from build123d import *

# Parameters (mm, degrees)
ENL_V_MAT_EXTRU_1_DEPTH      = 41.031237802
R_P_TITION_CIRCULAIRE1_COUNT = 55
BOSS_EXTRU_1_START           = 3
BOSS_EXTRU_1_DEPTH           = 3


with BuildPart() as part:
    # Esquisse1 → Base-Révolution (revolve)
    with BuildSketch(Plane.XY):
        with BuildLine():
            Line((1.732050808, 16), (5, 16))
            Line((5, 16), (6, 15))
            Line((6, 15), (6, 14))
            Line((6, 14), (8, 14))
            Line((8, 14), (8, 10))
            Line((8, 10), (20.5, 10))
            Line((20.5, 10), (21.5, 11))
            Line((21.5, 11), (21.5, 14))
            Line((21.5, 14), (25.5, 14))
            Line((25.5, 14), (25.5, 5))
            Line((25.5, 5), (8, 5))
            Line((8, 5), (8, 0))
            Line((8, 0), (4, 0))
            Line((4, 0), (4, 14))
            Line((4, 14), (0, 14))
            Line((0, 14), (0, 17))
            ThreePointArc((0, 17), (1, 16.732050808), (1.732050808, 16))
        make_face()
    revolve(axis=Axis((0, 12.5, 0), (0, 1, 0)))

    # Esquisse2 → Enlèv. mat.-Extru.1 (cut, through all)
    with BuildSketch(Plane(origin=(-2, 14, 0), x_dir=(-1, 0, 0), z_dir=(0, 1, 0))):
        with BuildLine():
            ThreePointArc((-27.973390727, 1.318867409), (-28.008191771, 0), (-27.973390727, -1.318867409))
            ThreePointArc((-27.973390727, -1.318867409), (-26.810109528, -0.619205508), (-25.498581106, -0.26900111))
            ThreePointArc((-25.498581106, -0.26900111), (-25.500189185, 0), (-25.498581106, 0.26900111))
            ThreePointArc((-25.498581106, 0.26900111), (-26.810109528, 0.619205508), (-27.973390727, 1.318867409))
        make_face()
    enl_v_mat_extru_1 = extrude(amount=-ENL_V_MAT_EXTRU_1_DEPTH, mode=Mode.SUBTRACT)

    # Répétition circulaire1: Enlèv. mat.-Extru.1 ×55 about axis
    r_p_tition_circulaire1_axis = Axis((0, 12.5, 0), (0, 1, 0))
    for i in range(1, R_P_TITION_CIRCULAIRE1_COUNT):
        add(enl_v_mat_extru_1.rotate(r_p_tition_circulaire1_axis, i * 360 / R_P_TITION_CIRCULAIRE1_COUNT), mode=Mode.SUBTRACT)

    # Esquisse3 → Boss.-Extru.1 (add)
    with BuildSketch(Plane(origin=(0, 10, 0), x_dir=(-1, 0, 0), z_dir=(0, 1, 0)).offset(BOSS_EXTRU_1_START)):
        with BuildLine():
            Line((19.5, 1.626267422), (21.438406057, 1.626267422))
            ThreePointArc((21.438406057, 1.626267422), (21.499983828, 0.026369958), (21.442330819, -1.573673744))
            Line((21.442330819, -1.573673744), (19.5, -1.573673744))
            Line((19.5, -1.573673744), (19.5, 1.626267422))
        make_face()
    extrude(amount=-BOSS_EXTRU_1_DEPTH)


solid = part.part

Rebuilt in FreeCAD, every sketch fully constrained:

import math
import FreeCAD as App
import Part
import Sketcher

V = App.Vector
Q = App.Units.Quantity

doc = App.newDocument("Part")
body = doc.addObject("PartDesign::Body", "Body")

sketch1 = body.newObject("Sketcher::SketchObject", "Sketch")
sketch1.AttachmentSupport = (doc.getObject("XY_Plane"), [""])
sketch1.MapMode = "FlatFace"
sketch1.addGeometry(Part.LineSegment(V(5, 16, 0), V(1.732051, 16, 0)), False)
sketch1.addGeometry(Part.ArcOfCircle(Part.Circle(V(0, 15, 0), V(0, 0, 1), 2), math.radians(30), math.radians(90)), False)
sketch1.addGeometry(Part.LineSegment(V(0, 17, 0), V(0, 14, 0)), False)
sketch1.addGeometry(Part.LineSegment(V(0, 14, 0), V(4, 14, 0)), False)
sketch1.addGeometry(Part.LineSegment(V(4, 14, 0), V(4, 0, 0)), False)
sketch1.addGeometry(Part.LineSegment(V(4, 0, 0), V(8, 0, 0)), False)
sketch1.addGeometry(Part.LineSegment(V(8, 0, 0), V(8, 5, 0)), False)
sketch1.addGeometry(Part.LineSegment(V(8, 5, 0), V(25.5, 5, 0)), False)
sketch1.addGeometry(Part.LineSegment(V(25.5, 5, 0), V(25.5, 14, 0)), False)
sketch1.addGeometry(Part.LineSegment(V(25.5, 14, 0), V(21.5, 14, 0)), False)
sketch1.addGeometry(Part.LineSegment(V(21.5, 14, 0), V(21.5, 11, 0)), False)
sketch1.addGeometry(Part.LineSegment(V(21.5, 11, 0), V(20.5, 10, 0)), False)
sketch1.addGeometry(Part.LineSegment(V(20.5, 10, 0), V(8, 10, 0)), False)
sketch1.addGeometry(Part.LineSegment(V(8, 10, 0), V(8, 14, 0)), False)
sketch1.addGeometry(Part.LineSegment(V(8, 14, 0), V(6, 14, 0)), False)
sketch1.addGeometry(Part.LineSegment(V(6, 14, 0), V(6, 15, 0)), False)
sketch1.addGeometry(Part.LineSegment(V(6, 15, 0), V(5, 16, 0)), False)
sketch1.addConstraint(Sketcher.Constraint("Coincident", 0, 2, 1, 1))
sketch1.addConstraint(Sketcher.Constraint("Coincident", 1, 2, 2, 1))
sketch1.addConstraint(Sketcher.Constraint("Coincident", 2, 2, 3, 1))
sketch1.addConstraint(Sketcher.Constraint("Coincident", 3, 2, 4, 1))
sketch1.addConstraint(Sketcher.Constraint("Coincident", 4, 2, 5, 1))
sketch1.addConstraint(Sketcher.Constraint("Coincident", 5, 2, 6, 1))
sketch1.addConstraint(Sketcher.Constraint("Coincident", 6, 2, 7, 1))
sketch1.addConstraint(Sketcher.Constraint("Coincident", 7, 2, 8, 1))
sketch1.addConstraint(Sketcher.Constraint("Coincident", 8, 2, 9, 1))
sketch1.addConstraint(Sketcher.Constraint("Coincident", 9, 2, 10, 1))
sketch1.addConstraint(Sketcher.Constraint("Coincident", 10, 2, 11, 1))
sketch1.addConstraint(Sketcher.Constraint("Coincident", 11, 2, 12, 1))
sketch1.addConstraint(Sketcher.Constraint("Coincident", 12, 2, 13, 1))
sketch1.addConstraint(Sketcher.Constraint("Coincident", 13, 2, 14, 1))
sketch1.addConstraint(Sketcher.Constraint("Coincident", 14, 2, 15, 1))
sketch1.addConstraint(Sketcher.Constraint("Coincident", 15, 2, 16, 1))
sketch1.addConstraint(Sketcher.Constraint("Coincident", 16, 2, 0, 1))
sketch1.addConstraint(Sketcher.Constraint("Horizontal", 0))
sketch1.addConstraint(Sketcher.Constraint("Vertical", 2))
sketch1.addConstraint(Sketcher.Constraint("Horizontal", 3))
sketch1.addConstraint(Sketcher.Constraint("Vertical", 4))
sketch1.addConstraint(Sketcher.Constraint("Horizontal", 5))
sketch1.addConstraint(Sketcher.Constraint("Vertical", 6))
sketch1.addConstraint(Sketcher.Constraint("Horizontal", 7))
sketch1.addConstraint(Sketcher.Constraint("Vertical", 8))
sketch1.addConstraint(Sketcher.Constraint("Horizontal", 9))
sketch1.addConstraint(Sketcher.Constraint("Vertical", 10))
sketch1.addConstraint(Sketcher.Constraint("Horizontal", 12))
sketch1.addConstraint(Sketcher.Constraint("Vertical", 13))
sketch1.addConstraint(Sketcher.Constraint("Horizontal", 14))
sketch1.addConstraint(Sketcher.Constraint("Vertical", 15))
sketch1.addConstraint(Sketcher.Constraint("PointOnObject", 1, 3, -2))
sketch1.addConstraint(Sketcher.Constraint("PointOnObject", 1, 2, -2))
sketch1.addConstraint(Sketcher.Constraint("PointOnObject", 4, 2, -1))
sketch1.addConstraint(Sketcher.Constraint("Perpendicular", 11, 16))
sketch1.addConstraint(Sketcher.Constraint("Horizontal", 3, 2, 8, 2))
sketch1.addConstraint(Sketcher.Constraint("Horizontal", 9, 2, 13, 2))
sketch1.addConstraint(Sketcher.Constraint("Horizontal", 1, 3, 15, 2))
sketch1.addConstraint(Sketcher.Constraint("Vertical", 6, 2, 12, 2))
sketch1.addConstraint(Sketcher.Constraint("Equal", 3, 5))
sketch1.addConstraint(Sketcher.Constraint("Equal", 5, 9))
sketch1.addConstraint(Sketcher.Constraint("Equal", 2, 10))
sketch1.addConstraint(Sketcher.Constraint("Equal", 9, 13))
sketch1.addConstraint(Sketcher.Constraint("Equal", 11, 16))
sketch1.addConstraint(Sketcher.Constraint("Radius", 1, Q("2 mm")))
sketch1.addConstraint(Sketcher.Constraint("DistanceX", 3, 1, 3, 2, Q("4 mm")))
sketch1.addConstraint(Sketcher.Constraint("DistanceX", 14, 2, 14, 1, Q("2 mm")))
sketch1.addConstraint(Sketcher.Constraint("DistanceY", 2, 2, 2, 1, Q("3 mm")))
sketch1.addConstraint(Sketcher.Constraint("DistanceY", 4, 2, 4, 1, Q("14 mm")))
sketch1.addConstraint(Sketcher.Constraint("DistanceY", 6, 1, 6, 2, Q("5 mm")))
sketch1.addConstraint(Sketcher.Constraint("Angle", 11, Q("-135 deg")))
sketch1.addConstraint(Sketcher.Constraint("DistanceX", 7, 1, 7, 2, Q("17.5 mm")))
revolution = body.newObject("PartDesign::Revolution", "Revolution")
revolution.Profile = sketch1
revolution.ReferenceAxis = (sketch1, ["V_Axis"])
revolution.Angle = 360

sketch2 = body.newObject("Sketcher::SketchObject", "Sketch001")
sketch2.AttachmentSupport = (doc.getObject("XZ_Plane"), [""])
sketch2.MapMode = "FlatFace"
sketch2.AttachmentOffset = App.Placement(V(0, 0, -14), App.Rotation())
sketch2.addGeometry(Part.ArcOfCircle(Part.Circle(V(1, 0, 0), V(0, 0, 1), 25.008192), math.radians(-3.023034), math.radians(3.023034)), False)
sketch2.addGeometry(Part.ArcOfCircle(Part.Circle(V(22.914296, -5.088135, 0), V(0, 0, 1), 4.854424), math.radians(50.937604), math.radians(83.08704)), False)
sketch2.addGeometry(Part.ArcOfCircle(Part.Circle(V(0.999994, 0, 0), V(0, 0, 1), 22.500195), math.radians(-0.685016), math.radians(0.685016)), False)
sketch2.addGeometry(Part.ArcOfCircle(Part.Circle(V(22.914296, 5.088135, 0), V(0, 0, 1), 4.854424), math.radians(-83.08704), math.radians(-50.937604)), False)
sketch2.addConstraint(Sketcher.Constraint("Coincident", 0, 1, 1, 1))
sketch2.addConstraint(Sketcher.Constraint("Coincident", 1, 2, 2, 1))
sketch2.addConstraint(Sketcher.Constraint("Coincident", 2, 2, 3, 1))
sketch2.addConstraint(Sketcher.Constraint("Coincident", 3, 2, 0, 2))
sketch2.addConstraint(Sketcher.Constraint("Coincident", 2, 3, 0, 3))
sketch2.addConstraint(Sketcher.Constraint("Equal", 1, 3))
sketch2.addConstraint(Sketcher.Constraint("Symmetric", 1, 3, 3, 3, -1))
sketch2.addConstraint(Sketcher.Constraint("PointOnObject", 0, 3, -1))
sketch2.addConstraint(Sketcher.Constraint("DistanceX", -1, 1, 0, 3, Q("1 mm")))
sketch2.addConstraint(Sketcher.Constraint("Radius", 0, Q("25.008192 mm")))
sketch2.addConstraint(Sketcher.Constraint("DistanceY", 1, 2, -1, 1, Q("0.269001 mm")))
sketch2.addConstraint(Sketcher.Constraint("Radius", 1, Q("4.854424 mm")))
sketch2.addConstraint(Sketcher.Constraint("Radius", 2, Q("22.500195 mm")))
sketch2.addConstraint(Sketcher.Constraint("DistanceX", 2, 3, 1, 3, Q("21.914302 mm")))
pocket1 = body.newObject("PartDesign::Pocket", "Pocket")
pocket1.Profile = sketch2
pocket1.Type = "ThroughAll"
pocket1.Reversed = True
doc.recompute()

polarpattern = body.newObject("PartDesign::PolarPattern", "PolarPattern")
polarpattern.Originals = [pocket1]
polarpattern.Axis = (doc.getObject("Y_Axis"), [""])
polarpattern.Angle = 360
polarpattern.Occurrences = 55
body.Tip = polarpattern

sketch3 = body.newObject("Sketcher::SketchObject", "Sketch002")
sketch3.AttachmentSupport = (doc.getObject("XZ_Plane"), [""])
sketch3.MapMode = "FlatFace"
sketch3.AttachmentOffset = App.Placement(V(0, 0, -13), App.Rotation())
sketch3.addGeometry(Part.LineSegment(V(-21.438406, 1.626267, 0), V(-19.5, 1.626267, 0)), False)
sketch3.addGeometry(Part.LineSegment(V(-19.5, 1.626267, 0), V(-19.5, -1.573674, 0)), False)
sketch3.addGeometry(Part.LineSegment(V(-19.5, -1.573674, 0), V(-21.442331, -1.573674, 0)), False)
sketch3.addGeometry(Part.ArcOfCircle(Part.Circle(V(0, 0, 0), V(0, 0, 1), 21.5), math.radians(175.661984), math.radians(184.197468)), False)
sketch3.addConstraint(Sketcher.Constraint("Coincident", 0, 2, 1, 1))
sketch3.addConstraint(Sketcher.Constraint("Coincident", 1, 2, 2, 1))
sketch3.addConstraint(Sketcher.Constraint("Coincident", 2, 2, 3, 2))
sketch3.addConstraint(Sketcher.Constraint("Coincident", 3, 1, 0, 1))
sketch3.addConstraint(Sketcher.Constraint("Horizontal", 0))
sketch3.addConstraint(Sketcher.Constraint("Vertical", 1))
sketch3.addConstraint(Sketcher.Constraint("Horizontal", 2))
sketch3.addConstraint(Sketcher.Constraint("Coincident", 3, 3, -1, 1))
sketch3.addConstraint(Sketcher.Constraint("Radius", 3, Q("21.5 mm")))
sketch3.addConstraint(Sketcher.Constraint("DistanceX", 0, 2, -1, 1, Q("19.5 mm")))
sketch3.addConstraint(Sketcher.Constraint("DistanceX", 2, 2, 2, 1, Q("1.942331 mm")))
sketch3.addConstraint(Sketcher.Constraint("DistanceY", 1, 2, 1, 1, Q("3.199941 mm")))
pad1 = body.newObject("PartDesign::Pad", "Pad")
pad1.Profile = sketch3
pad1.Length = 3

doc.recompute()
